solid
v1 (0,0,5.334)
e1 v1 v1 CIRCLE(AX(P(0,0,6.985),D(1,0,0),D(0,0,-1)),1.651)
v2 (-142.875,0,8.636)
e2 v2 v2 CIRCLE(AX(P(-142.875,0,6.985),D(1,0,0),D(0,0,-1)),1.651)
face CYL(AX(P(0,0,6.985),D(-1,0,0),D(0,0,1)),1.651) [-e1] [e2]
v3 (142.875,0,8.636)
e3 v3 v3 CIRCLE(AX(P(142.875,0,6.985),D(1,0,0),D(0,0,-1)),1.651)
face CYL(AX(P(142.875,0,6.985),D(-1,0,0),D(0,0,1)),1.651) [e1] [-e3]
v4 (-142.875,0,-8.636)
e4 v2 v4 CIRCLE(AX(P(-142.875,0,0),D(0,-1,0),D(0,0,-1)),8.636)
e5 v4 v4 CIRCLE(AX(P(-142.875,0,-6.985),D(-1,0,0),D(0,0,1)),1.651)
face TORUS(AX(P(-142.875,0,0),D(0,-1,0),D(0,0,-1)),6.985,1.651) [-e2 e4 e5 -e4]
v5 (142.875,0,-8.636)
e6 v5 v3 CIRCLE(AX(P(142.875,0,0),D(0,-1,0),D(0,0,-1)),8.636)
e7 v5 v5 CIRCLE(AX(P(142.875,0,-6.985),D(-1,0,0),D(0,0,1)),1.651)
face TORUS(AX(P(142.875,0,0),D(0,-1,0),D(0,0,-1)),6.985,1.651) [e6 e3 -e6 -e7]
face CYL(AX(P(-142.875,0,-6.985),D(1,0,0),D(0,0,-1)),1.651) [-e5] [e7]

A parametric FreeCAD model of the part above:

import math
import FreeCAD as App
import Part
import Sketcher
Q = App.Units.Quantity

doc = App.newDocument("Part")
body = doc.addObject("PartDesign::Body", "Body")

# Sketch on YZ plane
sketch1 = doc.addObject("Sketcher::SketchObject", "Sketch")
body.addObject(sketch1)
sketch1.AttachmentSupport = (doc.YZ_Plane, [""])
sketch1.MapMode = "FlatFace"
sketch1.addGeometry(Part.Circle(App.Vector(0, 7, 0), App.Vector(0, 0, 1), 1.7), False)
sketch1.addConstraint([
    Sketcher.Constraint("PointOnObject", 0, 3, -2),
    Sketcher.Constraint("Diameter", 0, Q("0.13 in")),
    Sketcher.Constraint("DistanceY", -1, 1, 0, 3, Q("0.275 in")),
])

# Sketch on XZ plane
sketch2 = doc.addObject("Sketcher::SketchObject", "Sketch001")
body.addObject(sketch2)
sketch2.AttachmentSupport = (doc.XZ_Plane, [""])
sketch2.MapMode = "FlatFace"
sketch2.addGeometry([
    Part.LineSegment(App.Vector(-143, -7, 0), App.Vector(143, -7, 0)),
    Part.ArcOfCircle(Part.Circle(App.Vector(143, 0, 0), App.Vector(0, 0, 1), 7), math.radians(-90), math.radians(90)),
    Part.LineSegment(App.Vector(143, 7, 0), App.Vector(-143, 7, 0)),
    Part.ArcOfCircle(Part.Circle(App.Vector(-143, 0, 0), App.Vector(0, 0, 1), 7), math.radians(90), math.radians(270)),
], False)
sketch2.addConstraint([
    Sketcher.Constraint("Tangent", 0, 2, 1, 1),
    Sketcher.Constraint("Tangent", 1, 2, 2, 1),
    Sketcher.Constraint("Tangent", 2, 2, 3, 1),
    Sketcher.Constraint("Tangent", 3, 2, 0, 1),
    Sketcher.Constraint("Horizontal", 0),
    Sketcher.Constraint("Horizontal", 2),
    Sketcher.Constraint("Symmetric", 1, 3, 3, 3, -1, 1),
    Sketcher.Constraint("Radius", 1, Q("0.275 in")),
    Sketcher.Constraint("DistanceX", 0, 1, 0, 2, Q("11.25 in")),
])
doc.recompute()

additivepipe = doc.addObject("PartDesign::AdditivePipe", "AdditivePipe")
body.addObject(additivepipe)
additivepipe.Profile = sketch1
additivepipe.Spine = (sketch2, ["Edge1", "Edge2", "Edge3", "Edge4"])

doc.recompute()
